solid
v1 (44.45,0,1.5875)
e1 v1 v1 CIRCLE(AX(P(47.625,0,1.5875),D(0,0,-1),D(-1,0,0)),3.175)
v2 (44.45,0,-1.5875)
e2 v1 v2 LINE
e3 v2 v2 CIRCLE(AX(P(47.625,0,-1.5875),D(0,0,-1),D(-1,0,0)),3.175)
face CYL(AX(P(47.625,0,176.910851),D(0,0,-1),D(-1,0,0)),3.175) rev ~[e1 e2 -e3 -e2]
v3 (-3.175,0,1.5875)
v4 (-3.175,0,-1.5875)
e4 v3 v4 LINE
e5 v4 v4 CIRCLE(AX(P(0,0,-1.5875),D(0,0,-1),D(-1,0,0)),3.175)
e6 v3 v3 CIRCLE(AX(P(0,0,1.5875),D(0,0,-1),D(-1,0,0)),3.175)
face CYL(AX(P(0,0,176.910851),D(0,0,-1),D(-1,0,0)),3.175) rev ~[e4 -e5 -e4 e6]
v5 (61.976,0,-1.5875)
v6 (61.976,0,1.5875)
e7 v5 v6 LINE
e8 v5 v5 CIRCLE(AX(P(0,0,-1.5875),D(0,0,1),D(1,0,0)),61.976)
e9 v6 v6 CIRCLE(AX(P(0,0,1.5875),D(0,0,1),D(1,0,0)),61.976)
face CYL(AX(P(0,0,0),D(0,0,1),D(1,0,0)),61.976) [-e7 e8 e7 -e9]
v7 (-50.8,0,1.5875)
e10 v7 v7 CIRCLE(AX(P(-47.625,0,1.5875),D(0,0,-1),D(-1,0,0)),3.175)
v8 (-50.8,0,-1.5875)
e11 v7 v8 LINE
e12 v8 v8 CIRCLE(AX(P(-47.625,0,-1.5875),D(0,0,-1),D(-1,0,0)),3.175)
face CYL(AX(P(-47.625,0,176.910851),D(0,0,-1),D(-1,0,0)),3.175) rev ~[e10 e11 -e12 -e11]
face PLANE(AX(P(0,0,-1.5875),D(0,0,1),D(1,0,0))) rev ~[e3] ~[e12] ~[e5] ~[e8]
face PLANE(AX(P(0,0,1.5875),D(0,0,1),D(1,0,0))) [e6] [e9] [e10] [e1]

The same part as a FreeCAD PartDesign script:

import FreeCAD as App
import Part
import Sketcher
Q = App.Units.Quantity

doc = App.newDocument("Part")
params = doc.addObject("Spreadsheet::Sheet", "Params")
for row, (alias, value) in enumerate([
    ("sketch1_diameter", "4.88 in"),
    ("pad1_length", "0.125 in"),
    ("sketch2_diameter", "0.25 in"),
    ("hole_diameter", "0.25 in"),
], start=1):
    params.set(f"A{row}", alias)
    params.set(f"B{row}", "=" + value)
    params.setAlias(f"B{row}", alias)

body = doc.addObject("PartDesign::Body", "Body")

# Sketch on XY plane
sketch1 = body.newObject("Sketcher::SketchObject", "Sketch")
sketch1.AttachmentSupport = (doc.getObject("XY_Plane"), [""])
sketch1.MapMode = "FlatFace"
sketch1.addGeometry(Part.Circle(App.Vector(0, 0, 0), App.Vector(0, 0, 1), 62), False)
sketch1.addConstraint(Sketcher.Constraint("Coincident", 0, 3, -1, 1))
sketch1.addConstraint(Sketcher.Constraint("Diameter", 0, Q("4.88 in")))
sketch1.setExpression("Constraints[1]", "Params.sketch1_diameter")
pad1 = body.newObject("PartDesign::Pad", "Pad")
pad1.Profile = sketch1
pad1.setExpression("Length", "Params.pad1_length")
pad1.Midplane = True

# Sketch on XY plane
sketch2 = body.newObject("Sketcher::SketchObject", "Sketch001")
sketch2.AttachmentSupport = (doc.getObject("XY_Plane"), [""])
sketch2.MapMode = "FlatFace"
sketch2.AttachmentOffset = App.Placement(App.Vector(0, 0, 0.0625 * 25.4), App.Rotation())
sketch2.addGeometry(Part.Circle(App.Vector(-47.6, 0, 0), App.Vector(0, 0, 1), 3.2), False)
sketch2.addGeometry(Part.Circle(App.Vector(0, 0, 0), App.Vector(0, 0, 1), 3.2), False)
sketch2.addGeometry(Part.Circle(App.Vector(47.6, 0, 0), App.Vector(0, 0, 1), 3.2), False)
sketch2.addConstraint(Sketcher.Constraint("Coincident", 1, 3, -1, 1))
sketch2.addConstraint(Sketcher.Constraint("Equal", 0, 1))
sketch2.addConstraint(Sketcher.Constraint("Equal", 1, 2))
sketch2.addConstraint(Sketcher.Constraint("Symmetric", 0, 3, 2, 3, -1, 1))
sketch2.addConstraint(Sketcher.Constraint("PointOnObject", 0, 3, -1))
sketch2.addConstraint(Sketcher.Constraint("Diameter", 0, Q("0.25 in")))
sketch2.addConstraint(Sketcher.Constraint("DistanceX", 0, 3, 2, 3, Q("3.75 in")))
sketch2.setExpression("Constraints[5]", "Params.sketch2_diameter")
doc.recompute()
hole = body.newObject("PartDesign::Hole", "Hole")
hole.Profile = sketch2
hole.ThreadType = "None"
hole.setExpression("Diameter", "Params.hole_diameter")
hole.DepthType = "ThroughAll"

doc.recompute()
